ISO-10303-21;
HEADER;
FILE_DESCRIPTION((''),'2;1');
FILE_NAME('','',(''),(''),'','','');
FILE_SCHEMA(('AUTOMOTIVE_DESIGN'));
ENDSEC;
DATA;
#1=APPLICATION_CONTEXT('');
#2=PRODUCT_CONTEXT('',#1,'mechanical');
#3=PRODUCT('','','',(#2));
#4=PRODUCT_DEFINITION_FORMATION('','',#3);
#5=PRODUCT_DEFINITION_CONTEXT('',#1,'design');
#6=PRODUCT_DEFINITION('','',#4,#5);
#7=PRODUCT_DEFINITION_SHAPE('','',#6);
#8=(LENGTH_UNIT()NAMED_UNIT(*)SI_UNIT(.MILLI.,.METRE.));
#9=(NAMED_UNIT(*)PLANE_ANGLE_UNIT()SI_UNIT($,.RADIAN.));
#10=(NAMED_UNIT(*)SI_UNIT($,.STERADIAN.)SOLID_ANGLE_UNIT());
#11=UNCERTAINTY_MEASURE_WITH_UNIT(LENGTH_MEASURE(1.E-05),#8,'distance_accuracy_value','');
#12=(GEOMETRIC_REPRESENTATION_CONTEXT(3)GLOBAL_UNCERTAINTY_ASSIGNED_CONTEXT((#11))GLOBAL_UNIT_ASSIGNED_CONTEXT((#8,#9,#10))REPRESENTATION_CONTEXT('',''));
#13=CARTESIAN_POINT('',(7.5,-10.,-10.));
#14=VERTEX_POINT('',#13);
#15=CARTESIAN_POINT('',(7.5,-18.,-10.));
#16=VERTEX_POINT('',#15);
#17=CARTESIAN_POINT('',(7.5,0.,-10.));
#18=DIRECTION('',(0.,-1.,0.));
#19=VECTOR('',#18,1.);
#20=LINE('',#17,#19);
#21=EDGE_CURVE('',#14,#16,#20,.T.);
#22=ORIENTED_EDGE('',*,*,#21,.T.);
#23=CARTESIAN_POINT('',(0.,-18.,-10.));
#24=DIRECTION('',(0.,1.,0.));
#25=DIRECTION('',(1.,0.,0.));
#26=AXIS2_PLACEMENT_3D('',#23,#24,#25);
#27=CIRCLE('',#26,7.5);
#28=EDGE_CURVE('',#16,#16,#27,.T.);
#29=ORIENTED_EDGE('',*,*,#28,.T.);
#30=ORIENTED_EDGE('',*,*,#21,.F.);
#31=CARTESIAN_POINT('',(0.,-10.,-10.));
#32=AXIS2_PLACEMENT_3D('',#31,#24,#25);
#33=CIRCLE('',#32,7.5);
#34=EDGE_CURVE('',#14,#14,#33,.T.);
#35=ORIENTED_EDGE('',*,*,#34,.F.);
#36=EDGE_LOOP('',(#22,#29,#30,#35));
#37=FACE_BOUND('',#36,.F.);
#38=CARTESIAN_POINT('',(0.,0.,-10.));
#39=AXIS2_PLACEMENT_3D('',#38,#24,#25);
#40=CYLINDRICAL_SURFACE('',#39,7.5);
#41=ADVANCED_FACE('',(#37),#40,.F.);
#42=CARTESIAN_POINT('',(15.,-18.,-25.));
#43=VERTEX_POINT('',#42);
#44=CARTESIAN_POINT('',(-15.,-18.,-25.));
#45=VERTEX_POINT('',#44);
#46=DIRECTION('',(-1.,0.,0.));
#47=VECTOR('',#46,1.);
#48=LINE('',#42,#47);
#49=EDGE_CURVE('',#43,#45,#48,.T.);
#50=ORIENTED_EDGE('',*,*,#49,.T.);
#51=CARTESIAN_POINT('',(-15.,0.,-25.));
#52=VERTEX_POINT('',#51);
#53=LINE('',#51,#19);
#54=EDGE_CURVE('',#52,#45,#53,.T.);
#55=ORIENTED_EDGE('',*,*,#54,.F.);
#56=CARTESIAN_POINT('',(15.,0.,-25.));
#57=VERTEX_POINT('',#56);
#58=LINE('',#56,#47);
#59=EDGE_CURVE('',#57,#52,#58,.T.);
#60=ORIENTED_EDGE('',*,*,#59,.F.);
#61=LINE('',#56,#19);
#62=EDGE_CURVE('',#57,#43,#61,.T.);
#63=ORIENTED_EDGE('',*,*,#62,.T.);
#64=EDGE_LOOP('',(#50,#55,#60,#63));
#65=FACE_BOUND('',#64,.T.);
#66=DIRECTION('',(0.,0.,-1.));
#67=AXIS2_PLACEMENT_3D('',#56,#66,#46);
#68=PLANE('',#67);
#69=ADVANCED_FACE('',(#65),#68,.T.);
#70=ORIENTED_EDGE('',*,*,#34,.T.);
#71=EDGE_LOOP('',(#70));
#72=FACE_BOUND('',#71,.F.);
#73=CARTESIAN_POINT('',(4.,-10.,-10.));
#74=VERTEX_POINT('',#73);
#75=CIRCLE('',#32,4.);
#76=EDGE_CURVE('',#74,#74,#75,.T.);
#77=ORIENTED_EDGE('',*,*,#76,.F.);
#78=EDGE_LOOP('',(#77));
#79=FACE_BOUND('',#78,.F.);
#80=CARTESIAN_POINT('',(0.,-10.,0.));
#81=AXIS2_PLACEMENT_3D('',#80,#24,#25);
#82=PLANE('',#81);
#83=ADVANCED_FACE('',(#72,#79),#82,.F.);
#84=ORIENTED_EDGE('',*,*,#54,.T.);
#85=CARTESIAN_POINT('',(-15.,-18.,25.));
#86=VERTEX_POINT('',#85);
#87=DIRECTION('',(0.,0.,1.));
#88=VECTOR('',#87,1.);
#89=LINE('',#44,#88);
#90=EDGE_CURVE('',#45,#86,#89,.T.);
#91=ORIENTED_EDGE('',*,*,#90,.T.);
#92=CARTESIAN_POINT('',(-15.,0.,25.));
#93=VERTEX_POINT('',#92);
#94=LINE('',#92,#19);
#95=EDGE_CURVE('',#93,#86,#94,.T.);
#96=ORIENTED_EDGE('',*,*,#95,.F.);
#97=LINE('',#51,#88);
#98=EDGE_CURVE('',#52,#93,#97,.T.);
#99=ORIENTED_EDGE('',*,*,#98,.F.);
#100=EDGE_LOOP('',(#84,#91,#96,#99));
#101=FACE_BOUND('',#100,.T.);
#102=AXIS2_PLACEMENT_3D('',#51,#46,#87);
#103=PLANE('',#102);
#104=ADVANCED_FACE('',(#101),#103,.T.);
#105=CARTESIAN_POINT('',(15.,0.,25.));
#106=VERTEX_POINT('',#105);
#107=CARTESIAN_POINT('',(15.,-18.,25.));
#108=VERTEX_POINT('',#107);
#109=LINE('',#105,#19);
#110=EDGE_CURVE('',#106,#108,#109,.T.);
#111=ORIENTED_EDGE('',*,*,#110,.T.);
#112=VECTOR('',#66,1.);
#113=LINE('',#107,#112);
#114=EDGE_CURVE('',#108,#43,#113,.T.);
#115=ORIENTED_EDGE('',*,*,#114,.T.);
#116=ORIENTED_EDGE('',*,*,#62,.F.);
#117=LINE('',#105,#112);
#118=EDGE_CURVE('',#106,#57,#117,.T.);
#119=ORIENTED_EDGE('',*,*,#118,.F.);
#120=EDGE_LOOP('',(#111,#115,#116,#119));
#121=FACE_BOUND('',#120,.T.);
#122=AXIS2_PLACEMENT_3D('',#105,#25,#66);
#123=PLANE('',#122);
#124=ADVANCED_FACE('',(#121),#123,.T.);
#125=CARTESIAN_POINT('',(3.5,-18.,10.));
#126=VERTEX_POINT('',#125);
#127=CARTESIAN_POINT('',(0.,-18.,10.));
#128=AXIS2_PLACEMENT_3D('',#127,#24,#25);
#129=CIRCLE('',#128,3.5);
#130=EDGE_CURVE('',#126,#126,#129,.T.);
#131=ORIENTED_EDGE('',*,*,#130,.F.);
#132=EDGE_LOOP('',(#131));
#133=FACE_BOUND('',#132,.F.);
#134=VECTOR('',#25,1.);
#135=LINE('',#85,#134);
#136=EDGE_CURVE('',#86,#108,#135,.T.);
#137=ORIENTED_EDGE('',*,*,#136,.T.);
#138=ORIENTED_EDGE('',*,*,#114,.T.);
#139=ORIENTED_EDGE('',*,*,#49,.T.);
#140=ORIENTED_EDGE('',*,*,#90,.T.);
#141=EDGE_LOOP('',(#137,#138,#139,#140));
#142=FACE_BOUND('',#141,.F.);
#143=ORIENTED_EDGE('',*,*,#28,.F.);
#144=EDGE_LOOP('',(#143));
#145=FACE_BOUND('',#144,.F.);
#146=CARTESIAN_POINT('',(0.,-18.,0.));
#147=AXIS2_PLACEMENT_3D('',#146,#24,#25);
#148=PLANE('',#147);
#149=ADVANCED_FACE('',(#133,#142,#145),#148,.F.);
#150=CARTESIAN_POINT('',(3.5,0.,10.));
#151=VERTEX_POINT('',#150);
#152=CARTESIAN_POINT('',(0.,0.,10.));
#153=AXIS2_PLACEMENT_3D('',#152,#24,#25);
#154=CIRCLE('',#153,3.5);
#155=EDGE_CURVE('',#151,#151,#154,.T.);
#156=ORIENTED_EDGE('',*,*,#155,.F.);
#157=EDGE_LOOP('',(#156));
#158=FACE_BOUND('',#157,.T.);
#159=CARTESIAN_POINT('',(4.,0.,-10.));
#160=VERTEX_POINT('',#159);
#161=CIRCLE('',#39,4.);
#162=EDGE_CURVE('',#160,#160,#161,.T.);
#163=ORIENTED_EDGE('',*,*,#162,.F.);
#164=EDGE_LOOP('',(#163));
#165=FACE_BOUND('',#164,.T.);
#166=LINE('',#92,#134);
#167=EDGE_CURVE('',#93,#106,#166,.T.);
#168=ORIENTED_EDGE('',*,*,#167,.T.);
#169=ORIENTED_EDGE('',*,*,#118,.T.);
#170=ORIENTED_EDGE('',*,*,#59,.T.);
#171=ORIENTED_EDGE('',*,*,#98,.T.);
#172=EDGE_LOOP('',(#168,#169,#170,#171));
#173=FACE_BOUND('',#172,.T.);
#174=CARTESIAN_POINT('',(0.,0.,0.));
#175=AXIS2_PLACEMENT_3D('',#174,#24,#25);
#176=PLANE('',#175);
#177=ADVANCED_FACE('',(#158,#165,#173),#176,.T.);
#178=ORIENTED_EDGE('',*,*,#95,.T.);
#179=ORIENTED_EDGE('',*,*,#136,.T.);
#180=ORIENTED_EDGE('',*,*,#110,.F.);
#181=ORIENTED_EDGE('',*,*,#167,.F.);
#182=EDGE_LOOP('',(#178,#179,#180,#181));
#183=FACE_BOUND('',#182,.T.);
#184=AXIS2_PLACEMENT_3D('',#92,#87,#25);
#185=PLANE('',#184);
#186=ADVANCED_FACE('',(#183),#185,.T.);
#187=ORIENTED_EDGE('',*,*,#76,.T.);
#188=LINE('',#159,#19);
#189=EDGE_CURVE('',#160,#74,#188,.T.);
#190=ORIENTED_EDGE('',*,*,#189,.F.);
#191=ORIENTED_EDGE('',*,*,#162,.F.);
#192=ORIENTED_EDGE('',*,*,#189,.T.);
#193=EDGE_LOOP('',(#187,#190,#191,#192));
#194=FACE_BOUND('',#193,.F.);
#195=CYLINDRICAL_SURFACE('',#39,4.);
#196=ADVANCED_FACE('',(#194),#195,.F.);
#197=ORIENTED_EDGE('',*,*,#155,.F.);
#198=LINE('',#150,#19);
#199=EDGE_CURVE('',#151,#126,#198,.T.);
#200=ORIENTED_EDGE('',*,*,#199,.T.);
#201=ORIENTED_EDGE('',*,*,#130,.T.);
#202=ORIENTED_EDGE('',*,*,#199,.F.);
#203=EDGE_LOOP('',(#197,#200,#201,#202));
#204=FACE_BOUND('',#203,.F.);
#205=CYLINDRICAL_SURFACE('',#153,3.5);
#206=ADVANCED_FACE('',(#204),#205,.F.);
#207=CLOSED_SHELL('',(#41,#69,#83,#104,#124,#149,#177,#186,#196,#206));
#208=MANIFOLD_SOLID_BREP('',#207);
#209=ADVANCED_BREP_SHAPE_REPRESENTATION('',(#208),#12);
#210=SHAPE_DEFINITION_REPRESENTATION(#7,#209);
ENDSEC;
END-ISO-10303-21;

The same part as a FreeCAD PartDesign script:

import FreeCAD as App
import Part
import Sketcher

V = App.Vector

doc = App.newDocument("Part")
body = doc.addObject("PartDesign::Body", "Body")

sketch1 = body.newObject("Sketcher::SketchObject", "Sketch")
sketch1.AttachmentSupport = (doc.getObject("XZ_Plane"), [""])
sketch1.MapMode = "FlatFace"
sketch1.addGeometry([
    Part.Circle(V(0, -10, 0), V(0, 0, 1), 7.5),
    Part.Circle(V(0, -10, 0), V(0, 0, 1), 4),
], False)
sketch1.addConstraint([
    Sketcher.Constraint("Coincident", 1, 3, 0, 3),
    Sketcher.Constraint("PointOnObject", 0, 3, -2),
    Sketcher.Constraint("Diameter", 0, 15.0),
    Sketcher.Constraint("Diameter", 1, 8.0),
    Sketcher.Constraint("DistanceY", 0, 3, -1, 1, 10.0),
])
pad1 = body.newObject("PartDesign::Pad", "Pad")
pad1.Profile = sketch1
pad1.Length = 10

sketch2 = body.newObject("Sketcher::SketchObject", "Sketch001")
sketch2.AttachmentSupport = (doc.getObject("XZ_Plane"), [""])
sketch2.MapMode = "FlatFace"
sketch2.addGeometry([
    Part.LineSegment(V(-15, -25, 0), V(-15, 25, 0)),
    Part.LineSegment(V(-15, 25, 0), V(15, 25, 0)),
    Part.LineSegment(V(15, 25, 0), V(15, -25, 0)),
    Part.LineSegment(V(15, -25, 0), V(-15, -25, 0)),
    Part.Circle(V(0, 10, 0), V(0, 0, 1), 3.5),
    Part.Circle(V(0, -10, 0), V(0, 0, 1), 7.5),
], False)
sketch2.addConstraint([
    Sketcher.Constraint("Coincident", 0, 2, 1, 1),
    Sketcher.Constraint("Coincident", 1, 2, 2, 1),
    Sketcher.Constraint("Coincident", 2, 2, 3, 1),
    Sketcher.Constraint("Coincident", 3, 2, 0, 1),
    Sketcher.Constraint("Vertical", 0),
    Sketcher.Constraint("Horizontal", 1),
    Sketcher.Constraint("Vertical", 2),
    Sketcher.Constraint("Horizontal", 3),
    Sketcher.Constraint("Symmetric", 4, 3, 5, 3, -1, 1),
    Sketcher.Constraint("Symmetric", 0, 2, 2, 2, -1, 1),
    Sketcher.Constraint("PointOnObject", 4, 3, -2),
    Sketcher.Constraint("Diameter", 4, 7.0),
    Sketcher.Constraint("Diameter", 5, 15.0),
    Sketcher.Constraint("DistanceX", 1, 1, 1, 2, 30.0),
    Sketcher.Constraint("DistanceY", 0, 1, 0, 2, 50.0),
    Sketcher.Constraint("DistanceY", 5, 3, 4, 3, 20.0),
])
pad2 = body.newObject("PartDesign::Pad", "Pad001")
pad2.Profile = sketch2
pad2.Length = 18

doc.recompute()
